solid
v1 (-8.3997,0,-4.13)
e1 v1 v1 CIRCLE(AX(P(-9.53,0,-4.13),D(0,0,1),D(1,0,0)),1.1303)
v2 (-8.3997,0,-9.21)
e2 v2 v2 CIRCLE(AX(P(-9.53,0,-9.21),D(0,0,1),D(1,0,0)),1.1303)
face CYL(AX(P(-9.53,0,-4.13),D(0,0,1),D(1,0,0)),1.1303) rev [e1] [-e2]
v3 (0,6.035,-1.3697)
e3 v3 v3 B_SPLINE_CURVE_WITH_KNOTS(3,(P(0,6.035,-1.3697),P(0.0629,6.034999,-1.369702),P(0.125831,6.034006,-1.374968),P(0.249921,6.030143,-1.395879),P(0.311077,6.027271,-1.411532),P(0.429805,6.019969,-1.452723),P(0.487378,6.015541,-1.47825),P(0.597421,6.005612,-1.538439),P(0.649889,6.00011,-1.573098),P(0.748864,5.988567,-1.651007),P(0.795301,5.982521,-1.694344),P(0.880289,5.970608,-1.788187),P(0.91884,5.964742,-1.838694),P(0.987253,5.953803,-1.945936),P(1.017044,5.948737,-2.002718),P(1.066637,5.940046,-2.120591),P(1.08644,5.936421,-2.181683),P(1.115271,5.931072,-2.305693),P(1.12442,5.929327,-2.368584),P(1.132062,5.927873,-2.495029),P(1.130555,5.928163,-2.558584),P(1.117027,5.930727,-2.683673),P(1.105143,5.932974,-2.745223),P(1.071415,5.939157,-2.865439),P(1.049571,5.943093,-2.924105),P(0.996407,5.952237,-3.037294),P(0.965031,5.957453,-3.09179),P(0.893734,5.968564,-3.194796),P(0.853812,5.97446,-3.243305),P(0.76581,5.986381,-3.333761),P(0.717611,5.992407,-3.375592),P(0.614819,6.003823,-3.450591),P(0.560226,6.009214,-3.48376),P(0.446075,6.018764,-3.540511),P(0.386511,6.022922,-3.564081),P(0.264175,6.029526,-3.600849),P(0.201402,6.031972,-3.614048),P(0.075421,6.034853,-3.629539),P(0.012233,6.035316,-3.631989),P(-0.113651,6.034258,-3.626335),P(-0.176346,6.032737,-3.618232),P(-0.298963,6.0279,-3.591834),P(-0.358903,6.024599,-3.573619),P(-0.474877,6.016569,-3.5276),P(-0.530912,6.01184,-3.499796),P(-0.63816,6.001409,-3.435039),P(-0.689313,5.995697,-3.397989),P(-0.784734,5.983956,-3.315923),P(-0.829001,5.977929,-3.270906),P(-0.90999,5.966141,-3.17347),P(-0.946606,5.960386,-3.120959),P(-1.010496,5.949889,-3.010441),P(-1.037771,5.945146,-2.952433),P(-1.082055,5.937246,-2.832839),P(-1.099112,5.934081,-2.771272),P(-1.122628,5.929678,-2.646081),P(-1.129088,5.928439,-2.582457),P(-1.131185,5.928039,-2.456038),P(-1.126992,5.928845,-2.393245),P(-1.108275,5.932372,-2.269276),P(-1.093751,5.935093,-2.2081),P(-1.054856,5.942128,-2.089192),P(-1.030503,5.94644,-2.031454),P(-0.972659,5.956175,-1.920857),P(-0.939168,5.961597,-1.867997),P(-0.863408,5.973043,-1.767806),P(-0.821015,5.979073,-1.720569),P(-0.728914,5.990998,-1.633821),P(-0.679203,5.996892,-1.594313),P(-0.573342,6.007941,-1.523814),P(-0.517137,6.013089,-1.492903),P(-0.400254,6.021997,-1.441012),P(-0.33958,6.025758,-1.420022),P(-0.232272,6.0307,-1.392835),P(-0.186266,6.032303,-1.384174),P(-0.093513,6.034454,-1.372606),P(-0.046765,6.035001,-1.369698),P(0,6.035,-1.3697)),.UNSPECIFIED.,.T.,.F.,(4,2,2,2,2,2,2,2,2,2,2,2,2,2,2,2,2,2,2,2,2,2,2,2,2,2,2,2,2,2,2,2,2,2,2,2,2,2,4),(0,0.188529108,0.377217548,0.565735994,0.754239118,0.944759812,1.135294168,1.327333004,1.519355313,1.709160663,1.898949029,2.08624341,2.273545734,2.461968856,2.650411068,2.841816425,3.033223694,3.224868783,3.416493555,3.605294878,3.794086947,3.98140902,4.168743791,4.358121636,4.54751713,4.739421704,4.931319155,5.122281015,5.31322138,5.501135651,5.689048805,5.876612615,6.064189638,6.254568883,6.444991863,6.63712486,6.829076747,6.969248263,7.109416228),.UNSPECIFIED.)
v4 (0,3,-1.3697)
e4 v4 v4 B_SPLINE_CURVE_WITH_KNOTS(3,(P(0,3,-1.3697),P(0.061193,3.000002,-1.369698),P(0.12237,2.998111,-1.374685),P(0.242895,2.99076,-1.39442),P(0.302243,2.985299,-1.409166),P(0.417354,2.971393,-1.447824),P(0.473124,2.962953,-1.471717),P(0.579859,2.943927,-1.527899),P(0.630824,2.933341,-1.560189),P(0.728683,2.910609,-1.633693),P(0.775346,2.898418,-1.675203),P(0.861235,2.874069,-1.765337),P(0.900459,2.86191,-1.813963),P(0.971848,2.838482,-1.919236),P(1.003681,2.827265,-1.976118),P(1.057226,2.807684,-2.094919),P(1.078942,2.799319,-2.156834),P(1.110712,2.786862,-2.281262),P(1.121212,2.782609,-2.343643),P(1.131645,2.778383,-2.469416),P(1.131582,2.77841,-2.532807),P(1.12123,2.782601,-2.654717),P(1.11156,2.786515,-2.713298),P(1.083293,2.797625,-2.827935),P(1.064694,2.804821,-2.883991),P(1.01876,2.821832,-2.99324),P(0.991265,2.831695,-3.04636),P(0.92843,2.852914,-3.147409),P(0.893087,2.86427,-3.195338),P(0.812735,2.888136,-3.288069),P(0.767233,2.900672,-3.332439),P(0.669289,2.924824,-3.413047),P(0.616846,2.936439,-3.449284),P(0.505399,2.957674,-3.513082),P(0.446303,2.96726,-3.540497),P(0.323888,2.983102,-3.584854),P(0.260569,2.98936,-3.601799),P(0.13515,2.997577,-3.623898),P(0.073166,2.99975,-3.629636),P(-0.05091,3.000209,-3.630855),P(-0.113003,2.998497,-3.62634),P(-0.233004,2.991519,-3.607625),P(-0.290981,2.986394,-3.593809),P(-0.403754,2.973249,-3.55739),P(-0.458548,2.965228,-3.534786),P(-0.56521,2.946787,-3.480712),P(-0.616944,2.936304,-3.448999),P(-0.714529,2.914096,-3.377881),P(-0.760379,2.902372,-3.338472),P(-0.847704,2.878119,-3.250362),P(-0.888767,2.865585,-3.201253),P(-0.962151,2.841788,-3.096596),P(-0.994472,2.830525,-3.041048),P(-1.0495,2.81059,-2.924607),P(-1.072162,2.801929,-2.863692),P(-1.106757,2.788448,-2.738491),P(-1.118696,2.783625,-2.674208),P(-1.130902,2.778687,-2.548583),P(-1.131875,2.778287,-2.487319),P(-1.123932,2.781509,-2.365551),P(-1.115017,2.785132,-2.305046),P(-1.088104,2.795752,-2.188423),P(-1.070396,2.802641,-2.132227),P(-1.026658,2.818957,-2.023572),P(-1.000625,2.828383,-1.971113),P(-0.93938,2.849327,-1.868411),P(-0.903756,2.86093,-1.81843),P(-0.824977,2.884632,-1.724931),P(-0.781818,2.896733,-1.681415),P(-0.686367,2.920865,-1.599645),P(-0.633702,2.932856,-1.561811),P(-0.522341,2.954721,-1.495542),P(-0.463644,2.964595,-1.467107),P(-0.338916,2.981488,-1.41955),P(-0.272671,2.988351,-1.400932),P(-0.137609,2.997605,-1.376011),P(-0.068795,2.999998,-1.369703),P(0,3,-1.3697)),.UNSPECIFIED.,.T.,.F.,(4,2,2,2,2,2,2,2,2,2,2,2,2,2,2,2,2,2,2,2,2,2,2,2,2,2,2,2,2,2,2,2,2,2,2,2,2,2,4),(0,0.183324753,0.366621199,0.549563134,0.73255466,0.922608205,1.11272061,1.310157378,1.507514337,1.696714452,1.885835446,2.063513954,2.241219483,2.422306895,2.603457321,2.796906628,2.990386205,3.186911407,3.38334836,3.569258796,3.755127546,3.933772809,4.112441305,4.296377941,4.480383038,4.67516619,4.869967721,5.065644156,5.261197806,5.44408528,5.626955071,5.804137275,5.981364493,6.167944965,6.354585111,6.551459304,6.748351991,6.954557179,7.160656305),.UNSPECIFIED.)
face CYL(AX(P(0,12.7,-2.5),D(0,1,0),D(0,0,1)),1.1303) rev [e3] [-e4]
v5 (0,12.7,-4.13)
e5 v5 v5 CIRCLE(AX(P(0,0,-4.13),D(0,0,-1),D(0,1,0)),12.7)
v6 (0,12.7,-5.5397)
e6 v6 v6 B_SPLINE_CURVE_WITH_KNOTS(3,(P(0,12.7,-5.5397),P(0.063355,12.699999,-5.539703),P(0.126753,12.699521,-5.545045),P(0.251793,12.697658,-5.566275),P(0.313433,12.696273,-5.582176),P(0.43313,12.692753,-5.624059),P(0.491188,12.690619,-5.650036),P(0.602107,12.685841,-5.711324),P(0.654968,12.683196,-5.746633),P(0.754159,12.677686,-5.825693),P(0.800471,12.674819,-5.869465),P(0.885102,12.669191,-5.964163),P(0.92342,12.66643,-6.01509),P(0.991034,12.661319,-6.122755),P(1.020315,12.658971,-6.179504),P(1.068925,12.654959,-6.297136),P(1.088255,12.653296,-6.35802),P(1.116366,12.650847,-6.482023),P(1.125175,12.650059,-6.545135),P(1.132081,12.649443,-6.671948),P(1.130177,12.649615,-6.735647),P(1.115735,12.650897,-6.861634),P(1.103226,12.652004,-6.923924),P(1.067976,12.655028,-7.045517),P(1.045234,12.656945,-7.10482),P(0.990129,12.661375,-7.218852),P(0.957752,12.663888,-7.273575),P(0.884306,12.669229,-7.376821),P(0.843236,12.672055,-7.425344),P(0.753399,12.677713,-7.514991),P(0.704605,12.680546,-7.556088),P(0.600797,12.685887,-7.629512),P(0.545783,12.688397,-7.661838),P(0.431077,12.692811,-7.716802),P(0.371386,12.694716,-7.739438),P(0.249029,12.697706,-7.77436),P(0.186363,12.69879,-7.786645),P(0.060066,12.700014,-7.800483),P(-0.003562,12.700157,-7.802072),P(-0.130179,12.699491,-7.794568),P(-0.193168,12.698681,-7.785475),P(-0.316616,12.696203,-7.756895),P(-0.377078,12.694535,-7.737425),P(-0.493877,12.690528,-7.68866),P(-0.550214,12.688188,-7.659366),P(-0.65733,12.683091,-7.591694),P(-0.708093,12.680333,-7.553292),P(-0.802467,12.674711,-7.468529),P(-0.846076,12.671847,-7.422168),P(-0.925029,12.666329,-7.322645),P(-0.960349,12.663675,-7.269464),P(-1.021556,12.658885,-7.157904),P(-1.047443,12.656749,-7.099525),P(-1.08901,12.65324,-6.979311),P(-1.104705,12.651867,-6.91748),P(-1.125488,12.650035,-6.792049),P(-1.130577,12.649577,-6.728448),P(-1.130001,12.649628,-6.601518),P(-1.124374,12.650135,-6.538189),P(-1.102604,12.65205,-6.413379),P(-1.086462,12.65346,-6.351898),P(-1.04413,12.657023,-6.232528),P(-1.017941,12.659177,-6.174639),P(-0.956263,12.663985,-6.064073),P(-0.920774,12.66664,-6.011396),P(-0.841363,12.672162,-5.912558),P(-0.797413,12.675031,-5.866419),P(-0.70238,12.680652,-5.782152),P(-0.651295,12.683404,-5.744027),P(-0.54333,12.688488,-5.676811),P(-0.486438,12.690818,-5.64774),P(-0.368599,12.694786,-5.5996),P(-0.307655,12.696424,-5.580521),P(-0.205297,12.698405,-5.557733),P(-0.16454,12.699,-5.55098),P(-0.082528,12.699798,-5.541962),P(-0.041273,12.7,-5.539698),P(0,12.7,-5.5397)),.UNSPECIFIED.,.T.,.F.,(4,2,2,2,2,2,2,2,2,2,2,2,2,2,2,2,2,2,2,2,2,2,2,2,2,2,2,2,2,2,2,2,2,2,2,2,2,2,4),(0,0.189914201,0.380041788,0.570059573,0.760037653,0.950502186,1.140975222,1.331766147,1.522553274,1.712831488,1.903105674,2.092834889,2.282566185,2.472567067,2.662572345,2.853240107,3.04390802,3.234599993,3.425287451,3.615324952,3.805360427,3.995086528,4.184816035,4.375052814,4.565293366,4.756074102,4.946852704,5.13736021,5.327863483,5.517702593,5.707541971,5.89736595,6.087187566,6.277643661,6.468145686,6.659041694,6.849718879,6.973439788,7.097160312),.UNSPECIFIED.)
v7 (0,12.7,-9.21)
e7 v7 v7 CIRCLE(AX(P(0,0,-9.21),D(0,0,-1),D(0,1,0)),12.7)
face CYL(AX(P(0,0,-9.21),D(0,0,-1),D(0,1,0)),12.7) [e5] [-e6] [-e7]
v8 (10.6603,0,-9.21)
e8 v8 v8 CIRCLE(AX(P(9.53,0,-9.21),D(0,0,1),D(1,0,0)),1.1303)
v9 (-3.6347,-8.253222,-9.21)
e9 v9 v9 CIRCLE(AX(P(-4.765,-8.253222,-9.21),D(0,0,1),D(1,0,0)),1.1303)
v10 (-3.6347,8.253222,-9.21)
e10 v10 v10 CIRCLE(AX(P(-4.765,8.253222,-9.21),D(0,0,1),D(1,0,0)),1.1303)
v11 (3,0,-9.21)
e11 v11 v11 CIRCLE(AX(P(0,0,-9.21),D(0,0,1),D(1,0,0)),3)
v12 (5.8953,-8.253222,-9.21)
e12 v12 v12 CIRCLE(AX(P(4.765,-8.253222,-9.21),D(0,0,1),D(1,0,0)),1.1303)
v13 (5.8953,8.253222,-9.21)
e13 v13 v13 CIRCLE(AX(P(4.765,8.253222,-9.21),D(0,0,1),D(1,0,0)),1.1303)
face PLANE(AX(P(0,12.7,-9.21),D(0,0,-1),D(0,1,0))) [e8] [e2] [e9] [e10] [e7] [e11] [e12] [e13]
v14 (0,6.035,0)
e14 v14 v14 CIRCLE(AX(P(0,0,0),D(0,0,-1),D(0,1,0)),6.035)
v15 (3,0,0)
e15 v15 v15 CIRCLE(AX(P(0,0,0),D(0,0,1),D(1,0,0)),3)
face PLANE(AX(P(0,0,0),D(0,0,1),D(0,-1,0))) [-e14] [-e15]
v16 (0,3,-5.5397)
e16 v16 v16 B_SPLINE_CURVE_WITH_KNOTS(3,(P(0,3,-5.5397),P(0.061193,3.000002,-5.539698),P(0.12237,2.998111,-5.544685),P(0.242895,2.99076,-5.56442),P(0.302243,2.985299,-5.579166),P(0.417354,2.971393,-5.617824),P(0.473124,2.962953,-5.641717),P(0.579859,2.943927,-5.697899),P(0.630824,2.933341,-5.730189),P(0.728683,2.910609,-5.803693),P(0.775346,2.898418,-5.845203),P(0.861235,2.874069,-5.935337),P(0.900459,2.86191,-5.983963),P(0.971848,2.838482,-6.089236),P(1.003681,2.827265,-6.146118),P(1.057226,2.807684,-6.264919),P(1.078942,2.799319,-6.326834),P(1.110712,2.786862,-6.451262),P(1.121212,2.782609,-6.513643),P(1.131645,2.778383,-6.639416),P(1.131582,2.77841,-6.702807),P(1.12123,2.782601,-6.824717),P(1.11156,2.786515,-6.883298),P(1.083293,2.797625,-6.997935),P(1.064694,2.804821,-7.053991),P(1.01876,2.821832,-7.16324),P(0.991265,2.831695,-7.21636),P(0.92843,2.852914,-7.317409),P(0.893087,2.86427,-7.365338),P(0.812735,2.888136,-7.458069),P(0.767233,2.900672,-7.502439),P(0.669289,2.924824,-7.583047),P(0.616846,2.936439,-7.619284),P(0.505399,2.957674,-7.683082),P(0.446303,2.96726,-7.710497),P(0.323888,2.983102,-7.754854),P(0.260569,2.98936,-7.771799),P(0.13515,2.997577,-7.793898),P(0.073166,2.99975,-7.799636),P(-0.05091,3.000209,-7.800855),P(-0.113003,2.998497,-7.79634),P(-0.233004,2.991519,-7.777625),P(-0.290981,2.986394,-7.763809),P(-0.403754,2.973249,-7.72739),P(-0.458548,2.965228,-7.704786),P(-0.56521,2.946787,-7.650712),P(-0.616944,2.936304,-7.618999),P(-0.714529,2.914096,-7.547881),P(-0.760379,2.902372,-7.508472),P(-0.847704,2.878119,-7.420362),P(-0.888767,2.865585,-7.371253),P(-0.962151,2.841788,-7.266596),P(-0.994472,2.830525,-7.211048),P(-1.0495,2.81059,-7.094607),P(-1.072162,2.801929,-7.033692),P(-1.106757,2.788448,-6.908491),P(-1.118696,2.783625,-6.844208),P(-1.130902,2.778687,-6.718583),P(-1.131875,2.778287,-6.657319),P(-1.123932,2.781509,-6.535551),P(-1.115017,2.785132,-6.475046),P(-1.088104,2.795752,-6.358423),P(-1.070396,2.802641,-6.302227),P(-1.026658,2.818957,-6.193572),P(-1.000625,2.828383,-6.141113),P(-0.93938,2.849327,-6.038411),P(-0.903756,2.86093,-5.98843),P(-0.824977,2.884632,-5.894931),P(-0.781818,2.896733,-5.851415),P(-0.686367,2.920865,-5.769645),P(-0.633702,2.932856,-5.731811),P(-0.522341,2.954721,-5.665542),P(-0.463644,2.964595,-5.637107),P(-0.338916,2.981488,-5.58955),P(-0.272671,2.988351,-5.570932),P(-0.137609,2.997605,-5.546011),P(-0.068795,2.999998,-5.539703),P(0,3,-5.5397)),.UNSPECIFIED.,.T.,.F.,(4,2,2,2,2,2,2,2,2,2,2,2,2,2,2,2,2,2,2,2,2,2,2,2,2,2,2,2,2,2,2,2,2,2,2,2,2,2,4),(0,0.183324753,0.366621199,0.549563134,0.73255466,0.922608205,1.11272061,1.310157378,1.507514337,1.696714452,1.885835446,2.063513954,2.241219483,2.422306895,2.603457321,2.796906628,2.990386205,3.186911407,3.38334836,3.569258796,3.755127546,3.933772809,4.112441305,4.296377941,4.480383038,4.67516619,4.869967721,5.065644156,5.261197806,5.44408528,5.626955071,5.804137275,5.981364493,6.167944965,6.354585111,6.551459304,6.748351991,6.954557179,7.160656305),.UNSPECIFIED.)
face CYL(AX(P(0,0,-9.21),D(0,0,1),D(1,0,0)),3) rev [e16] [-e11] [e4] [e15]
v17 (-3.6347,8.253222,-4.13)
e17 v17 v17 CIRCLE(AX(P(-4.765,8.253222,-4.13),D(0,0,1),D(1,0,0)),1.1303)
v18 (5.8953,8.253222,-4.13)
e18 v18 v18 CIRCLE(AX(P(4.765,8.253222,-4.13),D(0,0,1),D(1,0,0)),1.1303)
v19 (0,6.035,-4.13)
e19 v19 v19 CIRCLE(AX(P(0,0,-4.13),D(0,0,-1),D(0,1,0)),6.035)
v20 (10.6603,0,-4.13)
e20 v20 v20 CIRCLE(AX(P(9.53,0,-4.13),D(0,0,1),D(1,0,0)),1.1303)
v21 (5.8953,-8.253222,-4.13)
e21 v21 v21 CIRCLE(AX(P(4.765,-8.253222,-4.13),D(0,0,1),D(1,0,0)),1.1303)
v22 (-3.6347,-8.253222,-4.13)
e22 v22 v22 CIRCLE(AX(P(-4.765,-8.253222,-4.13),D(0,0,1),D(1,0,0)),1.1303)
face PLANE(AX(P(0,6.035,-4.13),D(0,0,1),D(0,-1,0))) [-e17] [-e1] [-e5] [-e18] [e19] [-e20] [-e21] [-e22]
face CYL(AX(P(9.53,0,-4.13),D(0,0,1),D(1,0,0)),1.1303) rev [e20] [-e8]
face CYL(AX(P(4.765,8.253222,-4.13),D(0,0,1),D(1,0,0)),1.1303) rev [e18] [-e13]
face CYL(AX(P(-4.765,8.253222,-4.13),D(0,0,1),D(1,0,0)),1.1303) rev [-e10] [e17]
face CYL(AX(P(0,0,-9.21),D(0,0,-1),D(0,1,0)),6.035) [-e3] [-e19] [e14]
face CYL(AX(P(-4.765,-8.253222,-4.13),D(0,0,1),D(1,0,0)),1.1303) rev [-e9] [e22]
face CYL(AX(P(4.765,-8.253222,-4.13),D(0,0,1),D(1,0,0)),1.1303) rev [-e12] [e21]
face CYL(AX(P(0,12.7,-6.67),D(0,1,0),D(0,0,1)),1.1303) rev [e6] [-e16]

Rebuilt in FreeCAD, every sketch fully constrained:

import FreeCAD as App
import Part
import Sketcher
from FreeCAD import Vector
Q = App.Units.Quantity

doc = App.newDocument("Part")
params = doc.addObject("Spreadsheet::Sheet", "Params")
for row, (alias, value) in enumerate([
    ("sketch1_width", "0.5 in"),
    ("sketch1_height", "0.2 in"),
    ("revolution_angle", "360 deg"),
    ("sketch3_diameter", "0.089 in"),
    ("hole_diameter", "0.089 in"),
    ("sketch4_diameter", "0.089 in"),
    ("hole2_diameter", "0.089 in"),
    ("hole2_depth", "12.699 mm"),
], start=1):
    params.set(f"A{row}", alias)
    params.set(f"B{row}", "=" + value)
    params.setAlias(f"B{row}", alias)

body = doc.addObject("PartDesign::Body", "Body")

# Sketch on YZ plane
sketch1 = body.newObject("Sketcher::SketchObject", "Sketch")
sketch1.AttachmentSupport = (doc.getObject("YZ_Plane"), [""])
sketch1.MapMode = "FlatFace"
sketch1.addGeometry(Part.LineSegment(Vector(6, 0, 0), Vector(0, 0, 0)), False)
sketch1.addGeometry(Part.LineSegment(Vector(0, 0, 0), Vector(0, -9.2, 0)), False)
sketch1.addGeometry(Part.LineSegment(Vector(0, -9.2, 0), Vector(12.7, -9.2, 0)), False)
sketch1.addGeometry(Part.LineSegment(Vector(12.7, -9.2, 0), Vector(12.7, -4.1, 0)), False)
sketch1.addGeometry(Part.LineSegment(Vector(12.7, -4.1, 0), Vector(6, -4.1, 0)), False)
sketch1.addGeometry(Part.LineSegment(Vector(6, -4.1, 0), Vector(6, 0, 0)), False)
sketch1.addConstraint(Sketcher.Constraint("Coincident", 0, 2, 1, 1))
sketch1.addConstraint(Sketcher.Constraint("Coincident", 1, 2, 2, 1))
sketch1.addConstraint(Sketcher.Constraint("Coincident", 2, 2, 3, 1))
sketch1.addConstraint(Sketcher.Constraint("Coincident", 3, 2, 4, 1))
sketch1.addConstraint(Sketcher.Constraint("Coincident", 4, 2, 5, 1))
sketch1.addConstraint(Sketcher.Constraint("Coincident", 5, 2, 0, 1))
sketch1.addConstraint(Sketcher.Constraint("Horizontal", 0))
sketch1.addConstraint(Sketcher.Constraint("Vertical", 1))
sketch1.addConstraint(Sketcher.Constraint("Horizontal", 2))
sketch1.addConstraint(Sketcher.Constraint("Vertical", 3))
sketch1.addConstraint(Sketcher.Constraint("Horizontal", 4))
sketch1.addConstraint(Sketcher.Constraint("Vertical", 5))
sketch1.addConstraint(Sketcher.Constraint("Coincident", 0, 2, -1, 1))
sketch1.addConstraint(Sketcher.Constraint("DistanceX", 2, 1, 2, 2, Q("0.5 in")))
sketch1.addConstraint(Sketcher.Constraint("DistanceY", 3, 1, 3, 2, Q("0.2 in")))
sketch1.addConstraint(Sketcher.Constraint("DistanceX", 0, 2, 0, 1, Q("6.035 mm")))
sketch1.addConstraint(Sketcher.Constraint("DistanceY", 1, 2, 1, 1, Q("9.21 mm")))
sketch1.setExpression("Constraints[13]", "Params.sketch1_width")
sketch1.setExpression("Constraints[14]", "Params.sketch1_height")
revolution = body.newObject("PartDesign::Revolution", "Revolution")
revolution.Profile = sketch1
revolution.ReferenceAxis = (sketch1, ["V_Axis"])
revolution.setExpression("Angle", "Params.revolution_angle")

# Sketch on XY plane
sketch2 = body.newObject("Sketcher::SketchObject", "Sketch001")
sketch2.AttachmentSupport = (doc.getObject("XY_Plane"), [""])
sketch2.MapMode = "FlatFace"
sketch2.addGeometry(Part.Circle(Vector(0, 0, 0), Vector(0, 0, 1), 3), False)
sketch2.addConstraint(Sketcher.Constraint("Coincident", 0, 3, -1, 1))
sketch2.addConstraint(Sketcher.Constraint("Diameter", 0, Q("6 mm")))
pocket1 = body.newObject("PartDesign::Pocket", "Pocket")
pocket1.Profile = sketch2
pocket1.Type = "ThroughAll"

# Sketch on XY plane
sketch3 = body.newObject("Sketcher::SketchObject", "Sketch002")
sketch3.AttachmentSupport = (doc.getObject("XY_Plane"), [""])
sketch3.MapMode = "FlatFace"
sketch3.AttachmentOffset = App.Placement(Vector(0, 0, -4.13), App.Rotation())
sketch3.addGeometry(Part.Circle(Vector(-9.5, 0, 0), Vector(0, 0, 1), 1.1), False)
sketch3.addGeometry(Part.Circle(Vector(-4.8, 8.3, 0), Vector(0, 0, 1), 1.1), False)
sketch3.addGeometry(Part.Circle(Vector(4.8, 8.3, 0), Vector(0, 0, 1), 1.1), False)
sketch3.addGeometry(Part.Circle(Vector(9.5, 0, 0), Vector(0, 0, 1), 1.1), False)
sketch3.addGeometry(Part.Circle(Vector(4.8, -8.3, 0), Vector(0, 0, 1), 1.1), False)
sketch3.addGeometry(Part.Circle(Vector(-4.8, -8.3, 0), Vector(0, 0, 1), 1.1), False)
sketch3.addGeometry(Part.Circle(Vector(0, 0, 0), Vector(0, 0, 1), 1.1), False)
sketch3.addConstraint(Sketcher.Constraint("Coincident", 6, 3, -1, 1))
sketch3.addConstraint(Sketcher.Constraint("Equal", 0, 1))
sketch3.addConstraint(Sketcher.Constraint("Equal", 1, 2))
sketch3.addConstraint(Sketcher.Constraint("Equal", 2, 3))
sketch3.addConstraint(Sketcher.Constraint("Equal", 3, 4))
sketch3.addConstraint(Sketcher.Constraint("Equal", 4, 5))
sketch3.addConstraint(Sketcher.Constraint("Equal", 5, 6))
sketch3.addConstraint(Sketcher.Constraint("Symmetric", 0, 3, 3, 3, -1, 1))
sketch3.addConstraint(Sketcher.Constraint("Symmetric", 1, 3, 4, 3, -1, 1))
sketch3.addConstraint(Sketcher.Constraint("Symmetric", 2, 3, 5, 3, -1, 1))
sketch3.addConstraint(Sketcher.Constraint("Symmetric", 1, 3, 2, 3, -2))
sketch3.addConstraint(Sketcher.Constraint("PointOnObject", 0, 3, -1))
sketch3.addConstraint(Sketcher.Constraint("Diameter", 0, Q("0.089 in")))
sketch3.addConstraint(Sketcher.Constraint("DistanceX", 0, 3, -1, 1, Q("9.53 mm")))
sketch3.addConstraint(Sketcher.Constraint("DistanceX", 1, 3, -1, 1, Q("4.765 mm")))
sketch3.addConstraint(Sketcher.Constraint("DistanceY", -1, 1, 1, 3, Q("8.253222 mm")))
sketch3.setExpression("Constraints[12]", "Params.sketch3_diameter")
doc.recompute()
hole = body.newObject("PartDesign::Hole", "Hole")
hole.Profile = sketch3
hole.ThreadType = "None"
hole.setExpression("Diameter", "Params.hole_diameter")
hole.DepthType = "ThroughAll"

# Sketch on XZ plane
sketch4 = body.newObject("Sketcher::SketchObject", "Sketch003")
sketch4.AttachmentSupport = (doc.getObject("XZ_Plane"), [""])
sketch4.MapMode = "FlatFace"
sketch4.AttachmentOffset = App.Placement(Vector(0, 0, -0.5 * 25.4), App.Rotation())
sketch4.addGeometry(Part.Circle(Vector(0, -6.7, 0), Vector(0, 0, 1), 1.1), False)
sketch4.addGeometry(Part.Circle(Vector(0, -2.5, 0), Vector(0, 0, 1), 1.1), False)
sketch4.addConstraint(Sketcher.Constraint("Equal", 0, 1))
sketch4.addConstraint(Sketcher.Constraint("PointOnObject", 0, 3, -2))
sketch4.addConstraint(Sketcher.Constraint("PointOnObject", 1, 3, -2))
sketch4.addConstraint(Sketcher.Constraint("Diameter", 0, Q("0.089 in")))
sketch4.addConstraint(Sketcher.Constraint("DistanceY", 0, 3, -1, 1, Q("6.67 mm")))
sketch4.addConstraint(Sketcher.Constraint("DistanceY", 1, 3, -1, 1, Q("2.5 mm")))
sketch4.setExpression("Constraints[3]", "Params.sketch4_diameter")
doc.recompute()
hole2 = body.newObject("PartDesign::Hole", "Hole001")
hole2.Profile = sketch4
hole2.ThreadType = "None"
hole2.setExpression("Diameter", "Params.hole2_diameter")
hole2.DepthType = "Dimension"
hole2.setExpression("Depth", "Params.hole2_depth")
hole2.DrillPoint = "Angled"
hole2.DrillPointAngle = 118
hole2.Reversed = True

doc.recompute()
